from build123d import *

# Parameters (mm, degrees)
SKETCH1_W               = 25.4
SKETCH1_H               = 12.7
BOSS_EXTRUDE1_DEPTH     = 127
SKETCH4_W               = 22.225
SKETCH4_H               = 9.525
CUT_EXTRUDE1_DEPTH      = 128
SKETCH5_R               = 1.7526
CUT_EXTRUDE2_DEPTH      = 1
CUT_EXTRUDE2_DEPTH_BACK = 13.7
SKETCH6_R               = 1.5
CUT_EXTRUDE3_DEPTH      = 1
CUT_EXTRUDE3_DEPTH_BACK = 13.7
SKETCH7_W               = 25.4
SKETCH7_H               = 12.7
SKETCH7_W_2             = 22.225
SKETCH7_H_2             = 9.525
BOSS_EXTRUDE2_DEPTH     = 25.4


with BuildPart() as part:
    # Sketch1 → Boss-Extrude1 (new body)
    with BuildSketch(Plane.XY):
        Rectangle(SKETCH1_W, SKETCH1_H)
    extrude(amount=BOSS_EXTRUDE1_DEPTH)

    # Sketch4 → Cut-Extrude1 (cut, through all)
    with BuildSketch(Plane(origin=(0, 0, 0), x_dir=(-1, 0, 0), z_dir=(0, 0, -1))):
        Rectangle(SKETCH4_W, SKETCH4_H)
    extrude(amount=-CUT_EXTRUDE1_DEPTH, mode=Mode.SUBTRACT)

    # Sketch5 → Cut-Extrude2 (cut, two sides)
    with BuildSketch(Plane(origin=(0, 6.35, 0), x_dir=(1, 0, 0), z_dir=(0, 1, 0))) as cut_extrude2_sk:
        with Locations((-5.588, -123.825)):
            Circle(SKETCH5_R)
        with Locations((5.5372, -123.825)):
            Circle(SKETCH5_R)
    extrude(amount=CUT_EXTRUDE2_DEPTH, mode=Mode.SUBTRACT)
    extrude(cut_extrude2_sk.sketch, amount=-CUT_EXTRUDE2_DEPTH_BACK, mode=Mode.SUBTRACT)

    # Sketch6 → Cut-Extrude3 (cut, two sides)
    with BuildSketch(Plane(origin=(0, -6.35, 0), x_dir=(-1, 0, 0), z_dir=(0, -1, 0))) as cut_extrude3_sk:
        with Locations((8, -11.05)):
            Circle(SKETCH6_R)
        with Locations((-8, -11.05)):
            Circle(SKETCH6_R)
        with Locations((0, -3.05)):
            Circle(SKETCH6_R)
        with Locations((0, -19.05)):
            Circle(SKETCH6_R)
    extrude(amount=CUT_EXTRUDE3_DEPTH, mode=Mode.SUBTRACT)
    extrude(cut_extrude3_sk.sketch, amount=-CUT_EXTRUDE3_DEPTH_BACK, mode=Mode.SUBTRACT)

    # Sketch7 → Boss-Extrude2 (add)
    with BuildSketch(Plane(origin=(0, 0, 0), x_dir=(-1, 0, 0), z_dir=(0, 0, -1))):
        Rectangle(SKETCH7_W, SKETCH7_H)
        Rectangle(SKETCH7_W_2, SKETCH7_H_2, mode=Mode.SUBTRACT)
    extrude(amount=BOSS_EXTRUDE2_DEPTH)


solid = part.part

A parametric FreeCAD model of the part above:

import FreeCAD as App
import Part
import Sketcher

V = App.Vector
Q = App.Units.Quantity

doc = App.newDocument("Part")
params = doc.addObject("Spreadsheet::Sheet", "Params")
for row, (alias, value) in enumerate([
    ("sketch1_width", "1 in"),
    ("sketch1_height", "0.5 in"),
    ("pad1_length", "5 in"),
    ("sketch2_width", "0.875 in"),
    ("sketch2_height", "0.375 in"),
    ("sketch3_diameter", "0.138 in"),
    ("sketch5_width", "1 in"),
    ("sketch5_height", "0.5 in"),
    ("sketch5_width2", "0.875 in"),
    ("sketch5_height2", "0.375 in"),
    ("pad2_length", "1 in"),
], start=1):
    params.set(f"A{row}", alias)
    params.set(f"B{row}", "=" + value)
    params.setAlias(f"B{row}", alias)

body = doc.addObject("PartDesign::Body", "Body")

sketch1 = body.newObject("Sketcher::SketchObject", "Sketch")
sketch1.AttachmentSupport = (doc.getObject("XY_Plane"), [""])
sketch1.MapMode = "FlatFace"
sketch1.addGeometry([
    Part.LineSegment(V(-13, 6, 0), V(-13, -6, 0)),
    Part.LineSegment(V(-13, -6, 0), V(13, -6, 0)),
    Part.LineSegment(V(13, -6, 0), V(13, 6, 0)),
    Part.LineSegment(V(13, 6, 0), V(-13, 6, 0)),
], False)
sketch1.addConstraint([
    Sketcher.Constraint("Coincident", 0, 2, 1, 1),
    Sketcher.Constraint("Coincident", 1, 2, 2, 1),
    Sketcher.Constraint("Coincident", 2, 2, 3, 1),
    Sketcher.Constraint("Coincident", 3, 2, 0, 1),
    Sketcher.Constraint("Vertical", 0),
    Sketcher.Constraint("Horizontal", 1),
    Sketcher.Constraint("Vertical", 2),
    Sketcher.Constraint("Horizontal", 3),
    Sketcher.Constraint("Symmetric", 0, 2, 2, 2, -1, 1),
    Sketcher.Constraint("DistanceX", 1, 1, 1, 2, Q("1 in")),
    Sketcher.Constraint("DistanceY", 0, 2, 0, 1, Q("0.5 in")),
])
sketch1.setExpression("Constraints[9]", "Params.sketch1_width")
sketch1.setExpression("Constraints[10]", "Params.sketch1_height")
pad1 = body.newObject("PartDesign::Pad", "Pad")
pad1.Profile = sketch1
pad1.setExpression("Length", "Params.pad1_length")

sketch2 = body.newObject("Sketcher::SketchObject", "Sketch001")
sketch2.AttachmentSupport = (doc.getObject("XY_Plane"), [""])
sketch2.MapMode = "FlatFace"
sketch2.addGeometry([
    Part.LineSegment(V(11, 5, 0), V(11, -5, 0)),
    Part.LineSegment(V(11, -5, 0), V(-11, -5, 0)),
    Part.LineSegment(V(-11, -5, 0), V(-11, 5, 0)),
    Part.LineSegment(V(-11, 5, 0), V(11, 5, 0)),
], False)
sketch2.addConstraint([
    Sketcher.Constraint("Coincident", 0, 2, 1, 1),
    Sketcher.Constraint("Coincident", 1, 2, 2, 1),
    Sketcher.Constraint("Coincident", 2, 2, 3, 1),
    Sketcher.Constraint("Coincident", 3, 2, 0, 1),
    Sketcher.Constraint("Vertical", 0),
    Sketcher.Constraint("Horizontal", 1),
    Sketcher.Constraint("Vertical", 2),
    Sketcher.Constraint("Horizontal", 3),
    Sketcher.Constraint("Symmetric", 0, 2, 2, 2, -1, 1),
    Sketcher.Constraint("DistanceX", 1, 2, 1, 1, Q("0.875 in")),
    Sketcher.Constraint("DistanceY", 0, 2, 0, 1, Q("0.375 in")),
])
sketch2.setExpression("Constraints[9]", "Params.sketch2_width")
sketch2.setExpression("Constraints[10]", "Params.sketch2_height")
pocket1 = body.newObject("PartDesign::Pocket", "Pocket")
pocket1.Profile = sketch2
pocket1.Type = "ThroughAll"
pocket1.Reversed = True

sketch3 = body.newObject("Sketcher::SketchObject", "Sketch002")
sketch3.AttachmentSupport = (doc.getObject("XZ_Plane"), [""])
sketch3.MapMode = "FlatFace"
sketch3.AttachmentOffset = App.Placement(V(0, 0, -0.25 * 25.4), App.Rotation())
sketch3.addGeometry([
    Part.Circle(V(-5.6, 123.8, 0), V(0, 0, 1), 1.8),
    Part.Circle(V(5.5, 123.8, 0), V(0, 0, 1), 1.8),
], False)
sketch3.addConstraint([
    Sketcher.Constraint("Equal", 0, 1),
    Sketcher.Constraint("Horizontal", 0, 3, 1, 3),
    Sketcher.Constraint("Diameter", 0, Q("0.138 in")),
    Sketcher.Constraint("DistanceX", 0, 3, -1, 1, Q("0.22 in")),
    Sketcher.Constraint("DistanceY", -1, 1, 0, 3, Q("4.875 in")),
    Sketcher.Constraint("DistanceX", -1, 1, 1, 3, Q("0.218 in")),
])
sketch3.setExpression("Constraints[2]", "Params.sketch3_diameter")
pocket2 = body.newObject("PartDesign::Pocket", "Pocket001")
pocket2.Profile = sketch3
pocket2.Type = "ThroughAll"
pocket2.Midplane = True

sketch4 = body.newObject("Sketcher::SketchObject", "Sketch003")
sketch4.AttachmentSupport = (doc.getObject("XZ_Plane"), [""])
sketch4.MapMode = "FlatFace"
sketch4.AttachmentOffset = App.Placement(V(0, 0, 0.25 * 25.4), App.Rotation())
sketch4.addGeometry([
    Part.Circle(V(-8, 11.1, 0), V(0, 0, 1), 1.5),
    Part.Circle(V(8, 11.1, 0), V(0, 0, 1), 1.5),
    Part.Circle(V(0, 3, 0), V(0, 0, 1), 1.5),
    Part.Circle(V(0, 19.1, 0), V(0, 0, 1), 1.5),
], False)
sketch4.addConstraint([
    Sketcher.Constraint("Equal", 0, 1),
    Sketcher.Constraint("Equal", 1, 2),
    Sketcher.Constraint("Equal", 2, 3),
    Sketcher.Constraint("Symmetric", 0, 3, 1, 3, -2),
    Sketcher.Constraint("PointOnObject", 2, 3, -2),
    Sketcher.Constraint("PointOnObject", 3, 3, -2),
    Sketcher.Constraint("Diameter", 0, 3.0),
    Sketcher.Constraint("DistanceY", -1, 1, 3, 3, Q("0.75 in")),
    Sketcher.Constraint("DistanceX", 0, 3, -1, 1, 8.0),
    Sketcher.Constraint("DistanceY", -1, 1, 0, 3, 11.05),
    Sketcher.Constraint("DistanceY", -1, 1, 2, 3, 3.05),
])
pocket3 = body.newObject("PartDesign::Pocket", "Pocket002")
pocket3.Profile = sketch4
pocket3.Type = "ThroughAll"
pocket3.Midplane = True

sketch5 = body.newObject("Sketcher::SketchObject", "Sketch004")
sketch5.AttachmentSupport = (doc.getObject("XY_Plane"), [""])
sketch5.MapMode = "FlatFace"
sketch5.addGeometry([
    Part.LineSegment(V(13, 6, 0), V(13, -6, 0)),
    Part.LineSegment(V(13, -6, 0), V(-13, -6, 0)),
    Part.LineSegment(V(-13, -6, 0), V(-13, 6, 0)),
    Part.LineSegment(V(-13, 6, 0), V(13, 6, 0)),
    Part.LineSegment(V(-11, -5, 0), V(11, -5, 0)),
    Part.LineSegment(V(11, -5, 0), V(11, 5, 0)),
    Part.LineSegment(V(11, 5, 0), V(-11, 5, 0)),
    Part.LineSegment(V(-11, 5, 0), V(-11, -5, 0)),
], False)
sketch5.addConstraint([
    Sketcher.Constraint("Coincident", 0, 2, 1, 1),
    Sketcher.Constraint("Coincident", 1, 2, 2, 1),
    Sketcher.Constraint("Coincident", 2, 2, 3, 1),
    Sketcher.Constraint("Coincident", 3, 2, 0, 1),
    Sketcher.Constraint("Coincident", 4, 2, 5, 1),
    Sketcher.Constraint("Coincident", 5, 2, 6, 1),
    Sketcher.Constraint("Coincident", 6, 2, 7, 1),
    Sketcher.Constraint("Coincident", 7, 2, 4, 1),
    Sketcher.Constraint("Vertical", 0),
    Sketcher.Constraint("Horizontal", 1),
    Sketcher.Constraint("Vertical", 2),
    Sketcher.Constraint("Horizontal", 3),
    Sketcher.Constraint("Horizontal", 4),
    Sketcher.Constraint("Vertical", 5),
    Sketcher.Constraint("Horizontal", 6),
    Sketcher.Constraint("Vertical", 7),
    Sketcher.Constraint("Symmetric", 0, 2, 2, 2, -1, 1),
    Sketcher.Constraint("Symmetric", 4, 2, 6, 2, -1, 1),
    Sketcher.Constraint("DistanceX", 1, 2, 1, 1, Q("1 in")),
    Sketcher.Constraint("DistanceY", 0, 2, 0, 1, Q("0.5 in")),
    Sketcher.Constraint("DistanceX", 4, 1, 4, 2, Q("0.875 in")),
    Sketcher.Constraint("DistanceY", 5, 1, 5, 2, Q("0.375 in")),
])
sketch5.setExpression("Constraints[18]", "Params.sketch5_width")
sketch5.setExpression("Constraints[19]", "Params.sketch5_height")
sketch5.setExpression("Constraints[20]", "Params.sketch5_width2")
sketch5.setExpression("Constraints[21]", "Params.sketch5_height2")
pad2 = body.newObject("PartDesign::Pad", "Pad001")
pad2.Profile = sketch5
pad2.setExpression("Length", "Params.pad2_length")
pad2.Reversed = True

doc.recompute()
